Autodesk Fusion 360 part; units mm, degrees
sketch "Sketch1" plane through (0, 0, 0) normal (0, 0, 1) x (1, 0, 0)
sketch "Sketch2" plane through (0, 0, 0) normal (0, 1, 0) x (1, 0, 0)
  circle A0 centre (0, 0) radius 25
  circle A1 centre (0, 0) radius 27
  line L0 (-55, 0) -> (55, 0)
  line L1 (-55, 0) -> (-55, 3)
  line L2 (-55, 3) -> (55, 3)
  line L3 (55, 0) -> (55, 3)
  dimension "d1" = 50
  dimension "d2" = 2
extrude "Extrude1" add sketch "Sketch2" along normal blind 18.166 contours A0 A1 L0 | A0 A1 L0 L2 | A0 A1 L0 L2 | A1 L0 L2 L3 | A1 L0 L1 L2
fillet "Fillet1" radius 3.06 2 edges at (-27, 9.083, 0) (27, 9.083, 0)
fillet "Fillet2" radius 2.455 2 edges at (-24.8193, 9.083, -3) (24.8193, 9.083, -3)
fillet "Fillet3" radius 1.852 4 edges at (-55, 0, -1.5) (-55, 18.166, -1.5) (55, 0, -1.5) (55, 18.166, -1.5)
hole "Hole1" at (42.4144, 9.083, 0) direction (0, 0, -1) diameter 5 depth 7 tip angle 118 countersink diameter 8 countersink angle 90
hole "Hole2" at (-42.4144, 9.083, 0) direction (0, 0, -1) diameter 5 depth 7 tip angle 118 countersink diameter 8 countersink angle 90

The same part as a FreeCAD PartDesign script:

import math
import FreeCAD as App
import Part
import Sketcher


def edges_at(feature, points):
    """Names of the edges that pass closest to the given points."""
    edges = feature.Shape.Edges
    near = lambda p: min(range(len(edges)), key=lambda i: edges[i].distToShape(Part.Vertex(*p))[0])
    return sorted({f"Edge{near(p) + 1}" for p in points})

doc = App.newDocument("Part")
body = doc.addObject("PartDesign::Body", "Body")

# Sketch on XZ plane
sketch1 = doc.addObject("Sketcher::SketchObject", "Sketch")
body.addObject(sketch1)
sketch1.AttachmentSupport = (doc.XZ_Plane, [""])
sketch1.MapMode = "FlatFace"
sketch1.addGeometry([
    Part.ArcOfCircle(Part.Circle(App.Vector(0, 0, 0), App.Vector(0, 0, 1), 27), math.radians(0), math.radians(180)),  # 0
    Part.LineSegment(App.Vector(27, 0, 0), App.Vector(55, 0, 0)),  # 1
    Part.LineSegment(App.Vector(55, 0, 0), App.Vector(55, -3, 0)),  # 2
    Part.LineSegment(App.Vector(55, -3, 0), App.Vector(24.8, -3, 0)),  # 3
    Part.ArcOfCircle(Part.Circle(App.Vector(0, 0, 0), App.Vector(0, 0, 1), 25), math.radians(-7), math.radians(187)),  # 4
    Part.LineSegment(App.Vector(-24.8, -3, 0), App.Vector(-55, -3, 0)),  # 5
    Part.LineSegment(App.Vector(-55, -3, 0), App.Vector(-55, 0, 0)),  # 6
    Part.LineSegment(App.Vector(-55, 0, 0), App.Vector(-27, 0, 0)),  # 7
], False)
sketch1.addConstraint([
    Sketcher.Constraint("Coincident", 0, 1, 1, 1),
    Sketcher.Constraint("Coincident", 1, 2, 2, 1),
    Sketcher.Constraint("Coincident", 2, 2, 3, 1),
    Sketcher.Constraint("Coincident", 3, 2, 4, 1),
    Sketcher.Constraint("Coincident", 4, 2, 5, 1),
    Sketcher.Constraint("Coincident", 5, 2, 6, 1),
    Sketcher.Constraint("Coincident", 6, 2, 7, 1),
    Sketcher.Constraint("Coincident", 7, 2, 0, 2),
    Sketcher.Constraint("Horizontal", 1),
    Sketcher.Constraint("Vertical", 2),
    Sketcher.Constraint("Horizontal", 3),
    Sketcher.Constraint("Horizontal", 5),
    Sketcher.Constraint("Vertical", 6),
    Sketcher.Constraint("Horizontal", 7),
    Sketcher.Constraint("Coincident", 0, 3, -1, 1),
    Sketcher.Constraint("Coincident", 4, 3, -1, 1),
    Sketcher.Constraint("Symmetric", 1, 2, 6, 2, -1, 1),
    Sketcher.Constraint("PointOnObject", 0, 1, -1),
    Sketcher.Constraint("Horizontal", 3, 2, 4, 2),
    Sketcher.Constraint("Radius", 4, 25.0),
    Sketcher.Constraint("Radius", 0, 27.0),
    Sketcher.Constraint("DistanceX", 1, 1, 1, 2, 28.0),
    Sketcher.Constraint("DistanceY", 2, 2, 2, 1, 3.0),
])
pad1 = doc.addObject("PartDesign::Pad", "Pad")
body.addObject(pad1)
pad1.Profile = sketch1
pad1.Length = 18.166
pad1.Reversed = True
doc.recompute()

fillet = doc.addObject("PartDesign::Fillet", "Fillet")
body.addObject(fillet)
fillet.Base = (pad1, edges_at(pad1, [(-27, 9.083, 0), (27, 9.083, 0)]))
fillet.Radius = 3.06
doc.recompute()

fillet2 = doc.addObject("PartDesign::Fillet", "Fillet001")
body.addObject(fillet2)
fillet2.Base = (fillet, edges_at(fillet, [(-24.819, 9.083, -3), (24.819, 9.083, -3)]))
fillet2.Radius = 2.455
doc.recompute()

fillet3 = doc.addObject("PartDesign::Fillet", "Fillet002")
body.addObject(fillet3)
fillet3.Base = (fillet2, edges_at(fillet2, [
    (-55, 0, -1.5),
    (-55, 18.166, -1.5),
    (55, 0, -1.5),
    (55, 18.166, -1.5),
]))
fillet3.Radius = 1.852

# Sketch on XY plane
sketch2 = doc.addObject("Sketcher::SketchObject", "Sketch001")
body.addObject(sketch2)
sketch2.AttachmentSupport = (doc.XY_Plane, [""])
sketch2.MapMode = "FlatFace"
sketch2.addGeometry(Part.Circle(App.Vector(42.4, 9.1, 0), App.Vector(0, 0, 1), 2.5), False)
sketch2.addConstraint([
    Sketcher.Constraint("Diameter", 0, 5.0),
    Sketcher.Constraint("DistanceY", -1, 1, 0, 3, 9.083),
    Sketcher.Constraint("DistanceX", -1, 1, 0, 3, 42.4144),
])
doc.recompute()
hole = doc.addObject("PartDesign::Hole", "Hole")
body.addObject(hole)
hole.Profile = sketch2
hole.ThreadType = "None"
hole.Diameter = 5
hole.DepthType = "Dimension"
hole.Depth = 7
hole.DrillPoint = "Angled"
hole.DrillPointAngle = 118
hole.HoleCutType = "Countersink"
hole.HoleCutDiameter = 8
hole.HoleCutCountersinkAngle = 90

# Sketch on XY plane
sketch3 = doc.addObject("Sketcher::SketchObject", "Sketch002")
body.addObject(sketch3)
sketch3.AttachmentSupport = (doc.XY_Plane, [""])
sketch3.MapMode = "FlatFace"
sketch3.addGeometry(Part.Circle(App.Vector(-42.4, 9.1, 0), App.Vector(0, 0, 1), 2.5), False)
sketch3.addConstraint([
    Sketcher.Constraint("Diameter", 0, 5.0),
    Sketcher.Constraint("DistanceY", -1, 1, 0, 3, 9.083),
    Sketcher.Constraint("DistanceX", 0, 3, -1, 1, 42.4144),
])
doc.recompute()
hole2 = doc.addObject("PartDesign::Hole", "Hole001")
body.addObject(hole2)
hole2.Profile = sketch3
hole2.ThreadType = "None"
hole2.Diameter = 5
hole2.DepthType = "Dimension"
hole2.Depth = 7
hole2.DrillPoint = "Angled"
hole2.DrillPointAngle = 118
hole2.HoleCutType = "Countersink"
hole2.HoleCutDiameter = 8
hole2.HoleCutCountersinkAngle = 90

doc.recompute()
